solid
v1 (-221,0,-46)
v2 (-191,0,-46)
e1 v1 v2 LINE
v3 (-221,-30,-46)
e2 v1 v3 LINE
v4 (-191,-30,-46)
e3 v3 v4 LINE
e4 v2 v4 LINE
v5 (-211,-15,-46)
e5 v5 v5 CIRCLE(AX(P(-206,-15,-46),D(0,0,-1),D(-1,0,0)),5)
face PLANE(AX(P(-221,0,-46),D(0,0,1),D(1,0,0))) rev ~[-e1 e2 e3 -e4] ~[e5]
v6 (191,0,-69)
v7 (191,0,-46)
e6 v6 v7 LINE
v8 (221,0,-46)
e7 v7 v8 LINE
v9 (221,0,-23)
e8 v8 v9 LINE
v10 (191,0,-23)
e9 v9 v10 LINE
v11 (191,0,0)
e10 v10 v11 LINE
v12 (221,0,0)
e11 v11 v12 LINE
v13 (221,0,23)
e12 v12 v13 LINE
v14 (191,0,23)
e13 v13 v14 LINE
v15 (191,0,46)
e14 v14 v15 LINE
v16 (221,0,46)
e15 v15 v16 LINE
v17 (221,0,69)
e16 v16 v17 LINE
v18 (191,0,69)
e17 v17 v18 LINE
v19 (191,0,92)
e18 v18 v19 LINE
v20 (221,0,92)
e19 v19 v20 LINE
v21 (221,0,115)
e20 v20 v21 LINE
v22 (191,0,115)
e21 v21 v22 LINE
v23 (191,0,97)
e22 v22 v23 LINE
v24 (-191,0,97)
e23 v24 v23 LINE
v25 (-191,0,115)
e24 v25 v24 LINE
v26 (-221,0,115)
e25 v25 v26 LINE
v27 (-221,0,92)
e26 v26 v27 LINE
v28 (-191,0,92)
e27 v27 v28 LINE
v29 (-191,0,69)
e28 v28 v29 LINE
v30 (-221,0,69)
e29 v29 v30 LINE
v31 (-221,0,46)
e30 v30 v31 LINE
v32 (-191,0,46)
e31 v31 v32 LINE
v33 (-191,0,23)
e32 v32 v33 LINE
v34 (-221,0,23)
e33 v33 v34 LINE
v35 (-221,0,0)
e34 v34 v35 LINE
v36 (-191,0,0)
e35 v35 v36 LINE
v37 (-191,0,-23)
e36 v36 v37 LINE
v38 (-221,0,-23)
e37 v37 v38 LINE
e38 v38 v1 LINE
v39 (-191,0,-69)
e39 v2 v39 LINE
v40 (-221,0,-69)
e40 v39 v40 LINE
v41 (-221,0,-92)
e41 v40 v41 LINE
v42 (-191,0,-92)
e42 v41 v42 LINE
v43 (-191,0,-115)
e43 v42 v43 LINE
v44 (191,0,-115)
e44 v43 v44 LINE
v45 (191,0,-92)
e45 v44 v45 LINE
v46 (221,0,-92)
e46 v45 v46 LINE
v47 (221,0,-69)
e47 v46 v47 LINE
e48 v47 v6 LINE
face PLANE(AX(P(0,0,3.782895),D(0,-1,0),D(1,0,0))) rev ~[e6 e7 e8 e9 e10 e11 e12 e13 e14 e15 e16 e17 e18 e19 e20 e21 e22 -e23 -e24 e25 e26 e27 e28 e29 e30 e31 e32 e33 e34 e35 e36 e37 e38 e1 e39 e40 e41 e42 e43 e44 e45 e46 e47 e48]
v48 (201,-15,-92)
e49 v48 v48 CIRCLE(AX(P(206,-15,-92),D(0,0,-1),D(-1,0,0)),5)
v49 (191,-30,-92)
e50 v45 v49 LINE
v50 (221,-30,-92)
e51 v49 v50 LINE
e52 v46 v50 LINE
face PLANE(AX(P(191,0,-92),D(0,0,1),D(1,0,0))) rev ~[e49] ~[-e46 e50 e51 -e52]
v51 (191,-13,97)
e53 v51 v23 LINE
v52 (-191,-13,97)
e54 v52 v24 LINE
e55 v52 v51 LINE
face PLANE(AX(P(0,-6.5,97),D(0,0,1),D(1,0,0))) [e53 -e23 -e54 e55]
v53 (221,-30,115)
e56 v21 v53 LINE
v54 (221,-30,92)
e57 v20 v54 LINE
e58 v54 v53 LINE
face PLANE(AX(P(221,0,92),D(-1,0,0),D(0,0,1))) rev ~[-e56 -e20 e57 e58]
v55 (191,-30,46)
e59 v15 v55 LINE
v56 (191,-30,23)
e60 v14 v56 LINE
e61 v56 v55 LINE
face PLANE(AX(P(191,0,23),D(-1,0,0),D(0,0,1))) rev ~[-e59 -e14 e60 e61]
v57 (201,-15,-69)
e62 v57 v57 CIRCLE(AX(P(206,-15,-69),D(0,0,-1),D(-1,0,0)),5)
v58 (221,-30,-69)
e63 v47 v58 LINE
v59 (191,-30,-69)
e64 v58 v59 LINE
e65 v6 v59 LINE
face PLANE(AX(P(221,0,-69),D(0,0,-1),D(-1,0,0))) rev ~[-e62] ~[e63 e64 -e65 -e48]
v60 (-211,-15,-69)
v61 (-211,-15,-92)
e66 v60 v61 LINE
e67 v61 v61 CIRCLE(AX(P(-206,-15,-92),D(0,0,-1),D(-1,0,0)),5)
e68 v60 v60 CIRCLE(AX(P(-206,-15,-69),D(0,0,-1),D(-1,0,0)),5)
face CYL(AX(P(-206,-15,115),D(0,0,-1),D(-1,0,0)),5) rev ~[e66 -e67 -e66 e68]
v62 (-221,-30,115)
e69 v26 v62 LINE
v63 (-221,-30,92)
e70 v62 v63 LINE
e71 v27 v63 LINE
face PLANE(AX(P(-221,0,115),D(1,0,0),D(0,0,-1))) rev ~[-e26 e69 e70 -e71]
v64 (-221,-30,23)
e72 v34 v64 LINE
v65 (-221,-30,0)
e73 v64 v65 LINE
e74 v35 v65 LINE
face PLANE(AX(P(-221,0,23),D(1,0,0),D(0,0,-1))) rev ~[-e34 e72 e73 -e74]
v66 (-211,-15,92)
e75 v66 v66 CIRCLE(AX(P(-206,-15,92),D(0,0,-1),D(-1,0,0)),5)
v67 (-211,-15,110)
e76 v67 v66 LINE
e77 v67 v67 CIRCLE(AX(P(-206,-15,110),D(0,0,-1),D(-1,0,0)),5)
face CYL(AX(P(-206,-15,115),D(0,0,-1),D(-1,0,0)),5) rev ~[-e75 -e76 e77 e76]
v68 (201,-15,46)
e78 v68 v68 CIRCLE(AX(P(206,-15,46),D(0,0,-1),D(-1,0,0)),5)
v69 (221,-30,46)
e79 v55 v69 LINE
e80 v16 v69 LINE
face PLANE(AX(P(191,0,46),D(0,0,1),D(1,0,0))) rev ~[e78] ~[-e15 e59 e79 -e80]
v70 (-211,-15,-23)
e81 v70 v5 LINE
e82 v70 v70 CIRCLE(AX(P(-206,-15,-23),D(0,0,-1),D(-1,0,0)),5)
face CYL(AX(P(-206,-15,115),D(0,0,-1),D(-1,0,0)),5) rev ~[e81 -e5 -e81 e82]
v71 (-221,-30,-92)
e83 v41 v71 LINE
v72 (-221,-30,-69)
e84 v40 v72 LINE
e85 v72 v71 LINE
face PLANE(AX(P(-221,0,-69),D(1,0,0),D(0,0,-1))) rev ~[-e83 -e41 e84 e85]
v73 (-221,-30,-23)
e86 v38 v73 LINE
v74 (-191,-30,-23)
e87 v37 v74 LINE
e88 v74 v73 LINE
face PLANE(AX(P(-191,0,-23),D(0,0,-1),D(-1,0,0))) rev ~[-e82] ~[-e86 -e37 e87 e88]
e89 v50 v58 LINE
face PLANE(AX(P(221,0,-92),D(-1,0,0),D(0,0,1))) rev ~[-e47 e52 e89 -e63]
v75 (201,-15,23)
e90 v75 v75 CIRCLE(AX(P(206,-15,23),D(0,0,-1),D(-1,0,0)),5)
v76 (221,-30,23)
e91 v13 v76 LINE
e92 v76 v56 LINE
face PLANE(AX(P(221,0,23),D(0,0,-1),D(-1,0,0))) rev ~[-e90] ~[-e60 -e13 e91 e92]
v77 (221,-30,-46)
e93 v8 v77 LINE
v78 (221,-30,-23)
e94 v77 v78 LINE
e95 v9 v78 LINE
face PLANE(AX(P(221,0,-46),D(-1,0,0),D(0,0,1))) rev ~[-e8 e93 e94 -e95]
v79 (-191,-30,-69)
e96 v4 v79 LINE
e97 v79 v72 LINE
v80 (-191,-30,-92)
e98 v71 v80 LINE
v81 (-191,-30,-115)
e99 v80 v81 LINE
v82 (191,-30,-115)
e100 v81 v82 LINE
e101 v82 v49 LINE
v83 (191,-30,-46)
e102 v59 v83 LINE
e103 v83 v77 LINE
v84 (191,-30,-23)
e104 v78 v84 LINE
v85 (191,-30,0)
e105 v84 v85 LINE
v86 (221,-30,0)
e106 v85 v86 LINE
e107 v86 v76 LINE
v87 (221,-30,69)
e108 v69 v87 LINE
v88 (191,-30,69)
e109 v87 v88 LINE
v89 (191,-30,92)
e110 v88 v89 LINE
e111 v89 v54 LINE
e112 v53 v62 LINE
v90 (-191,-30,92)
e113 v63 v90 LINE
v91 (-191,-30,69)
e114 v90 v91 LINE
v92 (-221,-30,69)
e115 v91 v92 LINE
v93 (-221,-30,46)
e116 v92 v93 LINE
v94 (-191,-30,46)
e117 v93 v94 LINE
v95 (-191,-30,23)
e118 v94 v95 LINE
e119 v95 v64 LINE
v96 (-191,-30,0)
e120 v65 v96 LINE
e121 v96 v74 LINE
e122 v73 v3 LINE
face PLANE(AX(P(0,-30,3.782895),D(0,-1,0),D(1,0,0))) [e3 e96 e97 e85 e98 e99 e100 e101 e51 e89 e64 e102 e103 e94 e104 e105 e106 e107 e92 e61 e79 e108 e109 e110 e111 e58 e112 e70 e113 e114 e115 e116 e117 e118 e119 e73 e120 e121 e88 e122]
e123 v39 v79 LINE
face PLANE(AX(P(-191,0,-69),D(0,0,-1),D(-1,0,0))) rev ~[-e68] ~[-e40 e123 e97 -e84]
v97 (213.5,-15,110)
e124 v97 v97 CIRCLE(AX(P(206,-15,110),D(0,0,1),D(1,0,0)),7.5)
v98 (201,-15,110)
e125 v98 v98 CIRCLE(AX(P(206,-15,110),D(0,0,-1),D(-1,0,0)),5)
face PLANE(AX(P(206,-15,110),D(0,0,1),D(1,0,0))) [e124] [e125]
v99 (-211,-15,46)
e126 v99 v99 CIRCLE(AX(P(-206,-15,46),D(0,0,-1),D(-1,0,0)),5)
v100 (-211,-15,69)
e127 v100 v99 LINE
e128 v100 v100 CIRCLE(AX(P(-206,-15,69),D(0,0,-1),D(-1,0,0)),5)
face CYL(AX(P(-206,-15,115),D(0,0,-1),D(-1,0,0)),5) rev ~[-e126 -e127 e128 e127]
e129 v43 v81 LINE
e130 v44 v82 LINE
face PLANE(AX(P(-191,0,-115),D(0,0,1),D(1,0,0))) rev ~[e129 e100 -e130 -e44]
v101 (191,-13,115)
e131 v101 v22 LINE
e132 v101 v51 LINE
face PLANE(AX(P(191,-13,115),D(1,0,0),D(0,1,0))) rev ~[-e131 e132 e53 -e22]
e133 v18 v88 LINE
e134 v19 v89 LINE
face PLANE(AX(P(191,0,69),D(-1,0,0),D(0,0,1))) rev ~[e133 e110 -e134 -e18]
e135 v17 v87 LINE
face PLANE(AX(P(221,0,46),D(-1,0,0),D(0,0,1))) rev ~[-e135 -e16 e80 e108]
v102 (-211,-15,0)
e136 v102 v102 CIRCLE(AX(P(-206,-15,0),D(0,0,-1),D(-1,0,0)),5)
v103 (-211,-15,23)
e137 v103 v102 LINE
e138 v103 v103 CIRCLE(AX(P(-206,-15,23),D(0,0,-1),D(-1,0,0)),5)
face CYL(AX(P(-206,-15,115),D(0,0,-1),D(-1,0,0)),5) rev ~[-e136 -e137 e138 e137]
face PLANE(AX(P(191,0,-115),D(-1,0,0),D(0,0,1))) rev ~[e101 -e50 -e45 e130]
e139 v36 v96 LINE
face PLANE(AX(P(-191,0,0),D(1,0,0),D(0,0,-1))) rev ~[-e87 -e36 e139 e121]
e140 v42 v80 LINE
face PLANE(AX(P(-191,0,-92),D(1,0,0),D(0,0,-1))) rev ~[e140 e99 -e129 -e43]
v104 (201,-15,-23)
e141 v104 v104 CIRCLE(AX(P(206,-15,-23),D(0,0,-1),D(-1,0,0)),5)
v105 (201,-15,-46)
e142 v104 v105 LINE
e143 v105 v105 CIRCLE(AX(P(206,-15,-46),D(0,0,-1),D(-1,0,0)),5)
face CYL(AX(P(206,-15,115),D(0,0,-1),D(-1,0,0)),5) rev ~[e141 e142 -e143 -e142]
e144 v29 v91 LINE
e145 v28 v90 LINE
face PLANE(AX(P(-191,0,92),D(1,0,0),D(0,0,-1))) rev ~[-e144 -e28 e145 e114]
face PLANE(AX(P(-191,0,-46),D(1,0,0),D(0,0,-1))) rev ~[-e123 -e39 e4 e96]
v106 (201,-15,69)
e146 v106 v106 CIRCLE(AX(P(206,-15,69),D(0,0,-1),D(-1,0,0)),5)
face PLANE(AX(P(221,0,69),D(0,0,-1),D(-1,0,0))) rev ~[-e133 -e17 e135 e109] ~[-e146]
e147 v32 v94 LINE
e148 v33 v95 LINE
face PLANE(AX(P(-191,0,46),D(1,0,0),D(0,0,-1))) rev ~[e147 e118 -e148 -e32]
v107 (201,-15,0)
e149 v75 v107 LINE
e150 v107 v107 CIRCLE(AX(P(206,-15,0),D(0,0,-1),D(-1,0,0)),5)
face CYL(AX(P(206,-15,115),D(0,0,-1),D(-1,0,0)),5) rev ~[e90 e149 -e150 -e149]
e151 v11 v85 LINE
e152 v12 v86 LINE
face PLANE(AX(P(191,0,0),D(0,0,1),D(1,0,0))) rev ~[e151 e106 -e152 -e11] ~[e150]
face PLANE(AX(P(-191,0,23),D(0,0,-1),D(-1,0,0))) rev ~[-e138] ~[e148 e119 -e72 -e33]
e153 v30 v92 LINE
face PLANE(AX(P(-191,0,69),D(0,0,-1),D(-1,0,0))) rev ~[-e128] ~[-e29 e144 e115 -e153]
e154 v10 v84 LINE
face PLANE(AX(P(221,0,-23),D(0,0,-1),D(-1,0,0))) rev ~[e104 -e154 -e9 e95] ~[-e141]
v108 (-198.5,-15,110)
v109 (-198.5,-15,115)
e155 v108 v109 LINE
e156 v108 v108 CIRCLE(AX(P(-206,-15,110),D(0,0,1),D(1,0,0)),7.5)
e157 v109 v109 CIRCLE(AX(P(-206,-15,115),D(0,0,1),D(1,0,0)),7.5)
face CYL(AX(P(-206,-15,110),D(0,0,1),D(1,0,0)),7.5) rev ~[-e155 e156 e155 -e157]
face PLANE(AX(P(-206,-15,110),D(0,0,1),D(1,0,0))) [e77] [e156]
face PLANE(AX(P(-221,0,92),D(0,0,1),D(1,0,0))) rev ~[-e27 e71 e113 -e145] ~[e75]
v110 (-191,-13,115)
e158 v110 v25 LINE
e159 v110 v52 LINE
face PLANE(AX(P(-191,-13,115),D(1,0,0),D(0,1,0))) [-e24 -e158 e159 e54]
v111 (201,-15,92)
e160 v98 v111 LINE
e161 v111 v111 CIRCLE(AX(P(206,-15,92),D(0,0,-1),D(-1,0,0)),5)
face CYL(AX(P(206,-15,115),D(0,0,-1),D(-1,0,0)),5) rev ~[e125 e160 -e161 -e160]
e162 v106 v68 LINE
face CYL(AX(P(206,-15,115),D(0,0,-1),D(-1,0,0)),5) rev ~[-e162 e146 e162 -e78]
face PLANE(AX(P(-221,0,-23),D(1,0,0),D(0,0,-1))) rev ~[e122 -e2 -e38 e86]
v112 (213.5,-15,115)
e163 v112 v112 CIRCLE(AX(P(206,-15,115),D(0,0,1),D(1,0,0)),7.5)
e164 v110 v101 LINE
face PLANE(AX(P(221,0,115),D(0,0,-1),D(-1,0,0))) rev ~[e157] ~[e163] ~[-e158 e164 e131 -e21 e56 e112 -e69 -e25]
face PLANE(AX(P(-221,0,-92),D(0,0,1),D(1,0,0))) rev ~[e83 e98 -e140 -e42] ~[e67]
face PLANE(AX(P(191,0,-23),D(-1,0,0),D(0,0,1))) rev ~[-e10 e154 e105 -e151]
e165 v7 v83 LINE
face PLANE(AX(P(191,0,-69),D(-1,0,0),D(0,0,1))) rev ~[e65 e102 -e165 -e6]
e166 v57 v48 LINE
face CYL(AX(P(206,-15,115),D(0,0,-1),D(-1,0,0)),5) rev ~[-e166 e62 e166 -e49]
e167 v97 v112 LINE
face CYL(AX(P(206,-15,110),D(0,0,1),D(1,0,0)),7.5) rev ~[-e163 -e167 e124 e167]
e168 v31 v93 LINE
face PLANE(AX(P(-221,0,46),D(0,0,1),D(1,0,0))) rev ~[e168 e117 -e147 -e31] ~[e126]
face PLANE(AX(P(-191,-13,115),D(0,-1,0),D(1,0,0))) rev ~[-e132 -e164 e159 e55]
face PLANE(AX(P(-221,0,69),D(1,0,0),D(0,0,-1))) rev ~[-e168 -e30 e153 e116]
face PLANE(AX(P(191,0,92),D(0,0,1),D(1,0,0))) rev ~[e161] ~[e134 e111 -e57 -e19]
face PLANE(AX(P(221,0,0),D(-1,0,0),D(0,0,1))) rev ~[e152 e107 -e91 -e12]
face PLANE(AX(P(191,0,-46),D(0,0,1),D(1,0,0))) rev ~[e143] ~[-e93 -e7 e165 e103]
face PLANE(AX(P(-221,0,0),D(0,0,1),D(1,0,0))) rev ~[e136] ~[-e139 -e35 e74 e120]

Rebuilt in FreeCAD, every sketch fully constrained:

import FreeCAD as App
import Part
import Sketcher

V = App.Vector

doc = App.newDocument("Part")
params = doc.addObject("Spreadsheet::Sheet", "Params")
for row, (alias, value) in enumerate([
    ("sketch1_width", "442 mm"),
    ("sketch1_width2", "30 mm"),
    ("sketch1_height", "23 mm"),
    ("pad1_length", "30 mm"),
    ("sketch2_diameter", "10 mm"),
    ("hole_diameter", "10 mm"),
    ("hole_cbore_diameter", "15 mm"),
    ("hole_cbore_depth", "5 mm"),
    ("sketch3_width", "382 mm"),
    ("sketch3_height", "13 mm"),
    ("pocket1_length", "18 mm"),
], start=1):
    params.set(f"A{row}", alias)
    params.set(f"B{row}", "=" + value)
    params.setAlias(f"B{row}", alias)

body = doc.addObject("PartDesign::Body", "Body")

sketch1 = body.newObject("Sketcher::SketchObject", "Sketch")
sketch1.AttachmentSupport = (doc.getObject("XZ_Plane"), [""])
sketch1.MapMode = "FlatFace"
sketch1.addGeometry([
    Part.LineSegment(V(221, 92, 0), V(221, 115, 0)),
    Part.LineSegment(V(221, 115, 0), V(-221, 115, 0)),
    Part.LineSegment(V(-221, 115, 0), V(-221, 92, 0)),
    Part.LineSegment(V(-221, 92, 0), V(-191, 92, 0)),
    Part.LineSegment(V(-191, 92, 0), V(-191, 69, 0)),
    Part.LineSegment(V(-191, 69, 0), V(-221, 69, 0)),
    Part.LineSegment(V(-221, 69, 0), V(-221, 46, 0)),
    Part.LineSegment(V(-221, 46, 0), V(-191, 46, 0)),
    Part.LineSegment(V(-191, 46, 0), V(-191, 23, 0)),
    Part.LineSegment(V(-191, 23, 0), V(-221, 23, 0)),
    Part.LineSegment(V(-221, 23, 0), V(-221, 0, 0)),
    Part.LineSegment(V(-221, 0, 0), V(-191, 0, 0)),
    Part.LineSegment(V(-191, 0, 0), V(-191, -23, 0)),
    Part.LineSegment(V(-191, -23, 0), V(-221, -23, 0)),
    Part.LineSegment(V(-221, -23, 0), V(-221, -46, 0)),
    Part.LineSegment(V(-221, -46, 0), V(-191, -46, 0)),
    Part.LineSegment(V(-191, -46, 0), V(-191, -69, 0)),
    Part.LineSegment(V(-191, -69, 0), V(-221, -69, 0)),
    Part.LineSegment(V(-221, -69, 0), V(-221, -92, 0)),
    Part.LineSegment(V(-221, -92, 0), V(-191, -92, 0)),
    Part.LineSegment(V(-191, -92, 0), V(-191, -115, 0)),
    Part.LineSegment(V(-191, -115, 0), V(191, -115, 0)),
    Part.LineSegment(V(191, -115, 0), V(191, -92, 0)),
    Part.LineSegment(V(191, -92, 0), V(221, -92, 0)),
    Part.LineSegment(V(221, -92, 0), V(221, -69, 0)),
    Part.LineSegment(V(221, -69, 0), V(191, -69, 0)),
    Part.LineSegment(V(191, -69, 0), V(191, -46, 0)),
    Part.LineSegment(V(191, -46, 0), V(221, -46, 0)),
    Part.LineSegment(V(221, -46, 0), V(221, -23, 0)),
    Part.LineSegment(V(221, -23, 0), V(191, -23, 0)),
    Part.LineSegment(V(191, -23, 0), V(191, 0, 0)),
    Part.LineSegment(V(191, 0, 0), V(221, 0, 0)),
    Part.LineSegment(V(221, 0, 0), V(221, 23, 0)),
    Part.LineSegment(V(221, 23, 0), V(191, 23, 0)),
    Part.LineSegment(V(191, 23, 0), V(191, 46, 0)),
    Part.LineSegment(V(191, 46, 0), V(221, 46, 0)),
    Part.LineSegment(V(221, 46, 0), V(221, 69, 0)),
    Part.LineSegment(V(221, 69, 0), V(191, 69, 0)),
    Part.LineSegment(V(191, 69, 0), V(191, 92, 0)),
    Part.LineSegment(V(191, 92, 0), V(221, 92, 0)),
], False)
sketch1.addConstraint([
    Sketcher.Constraint("Coincident", 0, 2, 1, 1),
    Sketcher.Constraint("Coincident", 1, 2, 2, 1),
    Sketcher.Constraint("Coincident", 2, 2, 3, 1),
    Sketcher.Constraint("Coincident", 3, 2, 4, 1),
    Sketcher.Constraint("Coincident", 4, 2, 5, 1),
    Sketcher.Constraint("Coincident", 5, 2, 6, 1),
    Sketcher.Constraint("Coincident", 6, 2, 7, 1),
    Sketcher.Constraint("Coincident", 7, 2, 8, 1),
    Sketcher.Constraint("Coincident", 8, 2, 9, 1),
    Sketcher.Constraint("Coincident", 9, 2, 10, 1),
    Sketcher.Constraint("Coincident", 10, 2, 11, 1),
    Sketcher.Constraint("Coincident", 11, 2, 12, 1),
    Sketcher.Constraint("Coincident", 12, 2, 13, 1),
    Sketcher.Constraint("Coincident", 13, 2, 14, 1),
    Sketcher.Constraint("Coincident", 14, 2, 15, 1),
    Sketcher.Constraint("Coincident", 15, 2, 16, 1),
    Sketcher.Constraint("Coincident", 16, 2, 17, 1),
    Sketcher.Constraint("Coincident", 17, 2, 18, 1),
    Sketcher.Constraint("Coincident", 18, 2, 19, 1),
    Sketcher.Constraint("Coincident", 19, 2, 20, 1),
    Sketcher.Constraint("Coincident", 20, 2, 21, 1),
    Sketcher.Constraint("Coincident", 21, 2, 22, 1),
    Sketcher.Constraint("Coincident", 22, 2, 23, 1),
    Sketcher.Constraint("Coincident", 23, 2, 24, 1),
    Sketcher.Constraint("Coincident", 24, 2, 25, 1),
    Sketcher.Constraint("Coincident", 25, 2, 26, 1),
    Sketcher.Constraint("Coincident", 26, 2, 27, 1),
    Sketcher.Constraint("Coincident", 27, 2, 28, 1),
    Sketcher.Constraint("Coincident", 28, 2, 29, 1),
    Sketcher.Constraint("Coincident", 29, 2, 30, 1),
    Sketcher.Constraint("Coincident", 30, 2, 31, 1),
    Sketcher.Constraint("Coincident", 31, 2, 32, 1),
    Sketcher.Constraint("Coincident", 32, 2, 33, 1),
    Sketcher.Constraint("Coincident", 33, 2, 34, 1),
    Sketcher.Constraint("Coincident", 34, 2, 35, 1),
    Sketcher.Constraint("Coincident", 35, 2, 36, 1),
    Sketcher.Constraint("Coincident", 36, 2, 37, 1),
    Sketcher.Constraint("Coincident", 37, 2, 38, 1),
    Sketcher.Constraint("Coincident", 38, 2, 39, 1),
    Sketcher.Constraint("Coincident", 39, 2, 0, 1),
    Sketcher.Constraint("Vertical", 0),
    Sketcher.Constraint("Horizontal", 1),
    Sketcher.Constraint("Vertical", 2),
    Sketcher.Constraint("Horizontal", 3),
    Sketcher.Constraint("Vertical", 4),
    Sketcher.Constraint("Horizontal", 5),
    Sketcher.Constraint("Vertical", 6),
    Sketcher.Constraint("Horizontal", 7),
    Sketcher.Constraint("Vertical", 8),
    Sketcher.Constraint("Horizontal", 9),
    Sketcher.Constraint("Vertical", 10),
    Sketcher.Constraint("Horizontal", 11),
    Sketcher.Constraint("Vertical", 12),
    Sketcher.Constraint("Horizontal", 13),
    Sketcher.Constraint("Vertical", 14),
    Sketcher.Constraint("Horizontal", 15),
    Sketcher.Constraint("Vertical", 16),
    Sketcher.Constraint("Horizontal", 17),
    Sketcher.Constraint("Vertical", 18),
    Sketcher.Constraint("Horizontal", 19),
    Sketcher.Constraint("Vertical", 20),
    Sketcher.Constraint("Horizontal", 21),
    Sketcher.Constraint("Vertical", 22),
    Sketcher.Constraint("Horizontal", 23),
    Sketcher.Constraint("Vertical", 24),
    Sketcher.Constraint("Horizontal", 25),
    Sketcher.Constraint("Vertical", 26),
    Sketcher.Constraint("Horizontal", 27),
    Sketcher.Constraint("Vertical", 28),
    Sketcher.Constraint("Horizontal", 29),
    Sketcher.Constraint("Vertical", 30),
    Sketcher.Constraint("Horizontal", 31),
    Sketcher.Constraint("Vertical", 32),
    Sketcher.Constraint("Horizontal", 33),
    Sketcher.Constraint("Vertical", 34),
    Sketcher.Constraint("Horizontal", 35),
    Sketcher.Constraint("Vertical", 36),
    Sketcher.Constraint("Horizontal", 37),
    Sketcher.Constraint("Vertical", 38),
    Sketcher.Constraint("Horizontal", 39),
    Sketcher.Constraint("Symmetric", 3, 2, 22, 2, -1, 1),
    Sketcher.Constraint("Symmetric", 5, 2, 24, 2, -1, 1),
    Sketcher.Constraint("Symmetric", 7, 2, 26, 2, -1, 1),
    Sketcher.Constraint("Symmetric", 9, 2, 28, 2, -1, 1),
    Sketcher.Constraint("Symmetric", 11, 2, 30, 2, -1, 1),
    Sketcher.Constraint("Symmetric", 13, 2, 32, 2, -1, 1),
    Sketcher.Constraint("Symmetric", 15, 2, 34, 2, -1, 1),
    Sketcher.Constraint("Symmetric", 17, 2, 36, 2, -1, 1),
    Sketcher.Constraint("Symmetric", 19, 2, 38, 2, -1, 1),
    Sketcher.Constraint("Symmetric", 19, 2, 22, 2, -2),
    Sketcher.Constraint("Symmetric", 17, 2, 24, 2, -2),
    Sketcher.Constraint("Symmetric", 15, 2, 26, 2, -2),
    Sketcher.Constraint("Symmetric", 13, 2, 28, 2, -2),
    Sketcher.Constraint("PointOnObject", 10, 2, -1),
    Sketcher.Constraint("Vertical", 2, 2, 5, 2),
    Sketcher.Constraint("Vertical", 4, 2, 7, 2),
    Sketcher.Constraint("Vertical", 6, 2, 9, 2),
    Sketcher.Constraint("Vertical", 8, 2, 11, 2),
    Sketcher.Constraint("Vertical", 0, 2, 23, 2),
    Sketcher.Constraint("Equal", 2, 4),
    Sketcher.Constraint("Equal", 4, 6),
    Sketcher.Constraint("Equal", 6, 8),
    Sketcher.Constraint("Equal", 8, 10),
    Sketcher.Constraint("Equal", 18, 20),
    Sketcher.Constraint("DistanceX", 1, 2, 1, 1, 442.0),
    Sketcher.Constraint("DistanceX", 3, 1, 3, 2, 30.0),
    Sketcher.Constraint("DistanceY", 0, 1, 0, 2, 23.0),
])
sketch1.setExpression("Constraints[104]", "Params.sketch1_width")
sketch1.setExpression("Constraints[105]", "Params.sketch1_width2")
sketch1.setExpression("Constraints[106]", "Params.sketch1_height")
pad1 = body.newObject("PartDesign::Pad", "Pad")
pad1.Profile = sketch1
pad1.setExpression("Length", "Params.pad1_length")

sketch2 = body.newObject("Sketcher::SketchObject", "Sketch001")
sketch2.AttachmentSupport = (doc.getObject("XY_Plane"), [""])
sketch2.MapMode = "FlatFace"
sketch2.AttachmentOffset = App.Placement(V(0, 0, 115), App.Rotation())
sketch2.addGeometry([
    Part.Circle(V(-206, -15, 0), V(0, 0, 1), 5),
    Part.Circle(V(206, -15, 0), V(0, 0, 1), 5),
], False)
sketch2.addConstraint([
    Sketcher.Constraint("Equal", 0, 1),
    Sketcher.Constraint("Symmetric", 0, 3, 1, 3, -2),
    Sketcher.Constraint("Diameter", 0, 10.0),
    Sketcher.Constraint("DistanceX", 0, 3, -1, 1, 206.0),
    Sketcher.Constraint("DistanceY", 0, 3, -1, 1, 15.0),
])
sketch2.setExpression("Constraints[2]", "Params.sketch2_diameter")
doc.recompute()
hole = body.newObject("PartDesign::Hole", "Hole")
hole.Profile = sketch2
hole.ThreadType = "None"
hole.setExpression("Diameter", "Params.hole_diameter")
hole.DepthType = "ThroughAll"
hole.HoleCutType = "Counterbore"
hole.setExpression("HoleCutDiameter", "Params.hole_cbore_diameter")
hole.setExpression("HoleCutDepth", "Params.hole_cbore_depth")

sketch3 = body.newObject("Sketcher::SketchObject", "Sketch002")
sketch3.AttachmentSupport = (doc.getObject("XY_Plane"), [""])
sketch3.MapMode = "FlatFace"
sketch3.AttachmentOffset = App.Placement(V(0, 0, 115), App.Rotation())
sketch3.addGeometry([
    Part.LineSegment(V(-191, 0, 0), V(-191, -13, 0)),
    Part.LineSegment(V(-191, -13, 0), V(191, -13, 0)),
    Part.LineSegment(V(191, -13, 0), V(191, 0, 0)),
    Part.LineSegment(V(191, 0, 0), V(-191, 0, 0)),
], False)
sketch3.addConstraint([
    Sketcher.Constraint("Coincident", 0, 2, 1, 1),
    Sketcher.Constraint("Coincident", 1, 2, 2, 1),
    Sketcher.Constraint("Coincident", 2, 2, 3, 1),
    Sketcher.Constraint("Coincident", 3, 2, 0, 1),
    Sketcher.Constraint("Vertical", 0),
    Sketcher.Constraint("Horizontal", 1),
    Sketcher.Constraint("Vertical", 2),
    Sketcher.Constraint("Horizontal", 3),
    Sketcher.Constraint("Symmetric", 2, 2, 3, 2, -1, 1),
    Sketcher.Constraint("DistanceX", 1, 1, 1, 2, 382.0),
    Sketcher.Constraint("DistanceY", 0, 2, 0, 1, 13.0),
])
sketch3.setExpression("Constraints[9]", "Params.sketch3_width")
sketch3.setExpression("Constraints[10]", "Params.sketch3_height")
pocket1 = body.newObject("PartDesign::Pocket", "Pocket")
pocket1.Profile = sketch3
pocket1.setExpression("Length", "Params.pocket1_length")

doc.recompute()
